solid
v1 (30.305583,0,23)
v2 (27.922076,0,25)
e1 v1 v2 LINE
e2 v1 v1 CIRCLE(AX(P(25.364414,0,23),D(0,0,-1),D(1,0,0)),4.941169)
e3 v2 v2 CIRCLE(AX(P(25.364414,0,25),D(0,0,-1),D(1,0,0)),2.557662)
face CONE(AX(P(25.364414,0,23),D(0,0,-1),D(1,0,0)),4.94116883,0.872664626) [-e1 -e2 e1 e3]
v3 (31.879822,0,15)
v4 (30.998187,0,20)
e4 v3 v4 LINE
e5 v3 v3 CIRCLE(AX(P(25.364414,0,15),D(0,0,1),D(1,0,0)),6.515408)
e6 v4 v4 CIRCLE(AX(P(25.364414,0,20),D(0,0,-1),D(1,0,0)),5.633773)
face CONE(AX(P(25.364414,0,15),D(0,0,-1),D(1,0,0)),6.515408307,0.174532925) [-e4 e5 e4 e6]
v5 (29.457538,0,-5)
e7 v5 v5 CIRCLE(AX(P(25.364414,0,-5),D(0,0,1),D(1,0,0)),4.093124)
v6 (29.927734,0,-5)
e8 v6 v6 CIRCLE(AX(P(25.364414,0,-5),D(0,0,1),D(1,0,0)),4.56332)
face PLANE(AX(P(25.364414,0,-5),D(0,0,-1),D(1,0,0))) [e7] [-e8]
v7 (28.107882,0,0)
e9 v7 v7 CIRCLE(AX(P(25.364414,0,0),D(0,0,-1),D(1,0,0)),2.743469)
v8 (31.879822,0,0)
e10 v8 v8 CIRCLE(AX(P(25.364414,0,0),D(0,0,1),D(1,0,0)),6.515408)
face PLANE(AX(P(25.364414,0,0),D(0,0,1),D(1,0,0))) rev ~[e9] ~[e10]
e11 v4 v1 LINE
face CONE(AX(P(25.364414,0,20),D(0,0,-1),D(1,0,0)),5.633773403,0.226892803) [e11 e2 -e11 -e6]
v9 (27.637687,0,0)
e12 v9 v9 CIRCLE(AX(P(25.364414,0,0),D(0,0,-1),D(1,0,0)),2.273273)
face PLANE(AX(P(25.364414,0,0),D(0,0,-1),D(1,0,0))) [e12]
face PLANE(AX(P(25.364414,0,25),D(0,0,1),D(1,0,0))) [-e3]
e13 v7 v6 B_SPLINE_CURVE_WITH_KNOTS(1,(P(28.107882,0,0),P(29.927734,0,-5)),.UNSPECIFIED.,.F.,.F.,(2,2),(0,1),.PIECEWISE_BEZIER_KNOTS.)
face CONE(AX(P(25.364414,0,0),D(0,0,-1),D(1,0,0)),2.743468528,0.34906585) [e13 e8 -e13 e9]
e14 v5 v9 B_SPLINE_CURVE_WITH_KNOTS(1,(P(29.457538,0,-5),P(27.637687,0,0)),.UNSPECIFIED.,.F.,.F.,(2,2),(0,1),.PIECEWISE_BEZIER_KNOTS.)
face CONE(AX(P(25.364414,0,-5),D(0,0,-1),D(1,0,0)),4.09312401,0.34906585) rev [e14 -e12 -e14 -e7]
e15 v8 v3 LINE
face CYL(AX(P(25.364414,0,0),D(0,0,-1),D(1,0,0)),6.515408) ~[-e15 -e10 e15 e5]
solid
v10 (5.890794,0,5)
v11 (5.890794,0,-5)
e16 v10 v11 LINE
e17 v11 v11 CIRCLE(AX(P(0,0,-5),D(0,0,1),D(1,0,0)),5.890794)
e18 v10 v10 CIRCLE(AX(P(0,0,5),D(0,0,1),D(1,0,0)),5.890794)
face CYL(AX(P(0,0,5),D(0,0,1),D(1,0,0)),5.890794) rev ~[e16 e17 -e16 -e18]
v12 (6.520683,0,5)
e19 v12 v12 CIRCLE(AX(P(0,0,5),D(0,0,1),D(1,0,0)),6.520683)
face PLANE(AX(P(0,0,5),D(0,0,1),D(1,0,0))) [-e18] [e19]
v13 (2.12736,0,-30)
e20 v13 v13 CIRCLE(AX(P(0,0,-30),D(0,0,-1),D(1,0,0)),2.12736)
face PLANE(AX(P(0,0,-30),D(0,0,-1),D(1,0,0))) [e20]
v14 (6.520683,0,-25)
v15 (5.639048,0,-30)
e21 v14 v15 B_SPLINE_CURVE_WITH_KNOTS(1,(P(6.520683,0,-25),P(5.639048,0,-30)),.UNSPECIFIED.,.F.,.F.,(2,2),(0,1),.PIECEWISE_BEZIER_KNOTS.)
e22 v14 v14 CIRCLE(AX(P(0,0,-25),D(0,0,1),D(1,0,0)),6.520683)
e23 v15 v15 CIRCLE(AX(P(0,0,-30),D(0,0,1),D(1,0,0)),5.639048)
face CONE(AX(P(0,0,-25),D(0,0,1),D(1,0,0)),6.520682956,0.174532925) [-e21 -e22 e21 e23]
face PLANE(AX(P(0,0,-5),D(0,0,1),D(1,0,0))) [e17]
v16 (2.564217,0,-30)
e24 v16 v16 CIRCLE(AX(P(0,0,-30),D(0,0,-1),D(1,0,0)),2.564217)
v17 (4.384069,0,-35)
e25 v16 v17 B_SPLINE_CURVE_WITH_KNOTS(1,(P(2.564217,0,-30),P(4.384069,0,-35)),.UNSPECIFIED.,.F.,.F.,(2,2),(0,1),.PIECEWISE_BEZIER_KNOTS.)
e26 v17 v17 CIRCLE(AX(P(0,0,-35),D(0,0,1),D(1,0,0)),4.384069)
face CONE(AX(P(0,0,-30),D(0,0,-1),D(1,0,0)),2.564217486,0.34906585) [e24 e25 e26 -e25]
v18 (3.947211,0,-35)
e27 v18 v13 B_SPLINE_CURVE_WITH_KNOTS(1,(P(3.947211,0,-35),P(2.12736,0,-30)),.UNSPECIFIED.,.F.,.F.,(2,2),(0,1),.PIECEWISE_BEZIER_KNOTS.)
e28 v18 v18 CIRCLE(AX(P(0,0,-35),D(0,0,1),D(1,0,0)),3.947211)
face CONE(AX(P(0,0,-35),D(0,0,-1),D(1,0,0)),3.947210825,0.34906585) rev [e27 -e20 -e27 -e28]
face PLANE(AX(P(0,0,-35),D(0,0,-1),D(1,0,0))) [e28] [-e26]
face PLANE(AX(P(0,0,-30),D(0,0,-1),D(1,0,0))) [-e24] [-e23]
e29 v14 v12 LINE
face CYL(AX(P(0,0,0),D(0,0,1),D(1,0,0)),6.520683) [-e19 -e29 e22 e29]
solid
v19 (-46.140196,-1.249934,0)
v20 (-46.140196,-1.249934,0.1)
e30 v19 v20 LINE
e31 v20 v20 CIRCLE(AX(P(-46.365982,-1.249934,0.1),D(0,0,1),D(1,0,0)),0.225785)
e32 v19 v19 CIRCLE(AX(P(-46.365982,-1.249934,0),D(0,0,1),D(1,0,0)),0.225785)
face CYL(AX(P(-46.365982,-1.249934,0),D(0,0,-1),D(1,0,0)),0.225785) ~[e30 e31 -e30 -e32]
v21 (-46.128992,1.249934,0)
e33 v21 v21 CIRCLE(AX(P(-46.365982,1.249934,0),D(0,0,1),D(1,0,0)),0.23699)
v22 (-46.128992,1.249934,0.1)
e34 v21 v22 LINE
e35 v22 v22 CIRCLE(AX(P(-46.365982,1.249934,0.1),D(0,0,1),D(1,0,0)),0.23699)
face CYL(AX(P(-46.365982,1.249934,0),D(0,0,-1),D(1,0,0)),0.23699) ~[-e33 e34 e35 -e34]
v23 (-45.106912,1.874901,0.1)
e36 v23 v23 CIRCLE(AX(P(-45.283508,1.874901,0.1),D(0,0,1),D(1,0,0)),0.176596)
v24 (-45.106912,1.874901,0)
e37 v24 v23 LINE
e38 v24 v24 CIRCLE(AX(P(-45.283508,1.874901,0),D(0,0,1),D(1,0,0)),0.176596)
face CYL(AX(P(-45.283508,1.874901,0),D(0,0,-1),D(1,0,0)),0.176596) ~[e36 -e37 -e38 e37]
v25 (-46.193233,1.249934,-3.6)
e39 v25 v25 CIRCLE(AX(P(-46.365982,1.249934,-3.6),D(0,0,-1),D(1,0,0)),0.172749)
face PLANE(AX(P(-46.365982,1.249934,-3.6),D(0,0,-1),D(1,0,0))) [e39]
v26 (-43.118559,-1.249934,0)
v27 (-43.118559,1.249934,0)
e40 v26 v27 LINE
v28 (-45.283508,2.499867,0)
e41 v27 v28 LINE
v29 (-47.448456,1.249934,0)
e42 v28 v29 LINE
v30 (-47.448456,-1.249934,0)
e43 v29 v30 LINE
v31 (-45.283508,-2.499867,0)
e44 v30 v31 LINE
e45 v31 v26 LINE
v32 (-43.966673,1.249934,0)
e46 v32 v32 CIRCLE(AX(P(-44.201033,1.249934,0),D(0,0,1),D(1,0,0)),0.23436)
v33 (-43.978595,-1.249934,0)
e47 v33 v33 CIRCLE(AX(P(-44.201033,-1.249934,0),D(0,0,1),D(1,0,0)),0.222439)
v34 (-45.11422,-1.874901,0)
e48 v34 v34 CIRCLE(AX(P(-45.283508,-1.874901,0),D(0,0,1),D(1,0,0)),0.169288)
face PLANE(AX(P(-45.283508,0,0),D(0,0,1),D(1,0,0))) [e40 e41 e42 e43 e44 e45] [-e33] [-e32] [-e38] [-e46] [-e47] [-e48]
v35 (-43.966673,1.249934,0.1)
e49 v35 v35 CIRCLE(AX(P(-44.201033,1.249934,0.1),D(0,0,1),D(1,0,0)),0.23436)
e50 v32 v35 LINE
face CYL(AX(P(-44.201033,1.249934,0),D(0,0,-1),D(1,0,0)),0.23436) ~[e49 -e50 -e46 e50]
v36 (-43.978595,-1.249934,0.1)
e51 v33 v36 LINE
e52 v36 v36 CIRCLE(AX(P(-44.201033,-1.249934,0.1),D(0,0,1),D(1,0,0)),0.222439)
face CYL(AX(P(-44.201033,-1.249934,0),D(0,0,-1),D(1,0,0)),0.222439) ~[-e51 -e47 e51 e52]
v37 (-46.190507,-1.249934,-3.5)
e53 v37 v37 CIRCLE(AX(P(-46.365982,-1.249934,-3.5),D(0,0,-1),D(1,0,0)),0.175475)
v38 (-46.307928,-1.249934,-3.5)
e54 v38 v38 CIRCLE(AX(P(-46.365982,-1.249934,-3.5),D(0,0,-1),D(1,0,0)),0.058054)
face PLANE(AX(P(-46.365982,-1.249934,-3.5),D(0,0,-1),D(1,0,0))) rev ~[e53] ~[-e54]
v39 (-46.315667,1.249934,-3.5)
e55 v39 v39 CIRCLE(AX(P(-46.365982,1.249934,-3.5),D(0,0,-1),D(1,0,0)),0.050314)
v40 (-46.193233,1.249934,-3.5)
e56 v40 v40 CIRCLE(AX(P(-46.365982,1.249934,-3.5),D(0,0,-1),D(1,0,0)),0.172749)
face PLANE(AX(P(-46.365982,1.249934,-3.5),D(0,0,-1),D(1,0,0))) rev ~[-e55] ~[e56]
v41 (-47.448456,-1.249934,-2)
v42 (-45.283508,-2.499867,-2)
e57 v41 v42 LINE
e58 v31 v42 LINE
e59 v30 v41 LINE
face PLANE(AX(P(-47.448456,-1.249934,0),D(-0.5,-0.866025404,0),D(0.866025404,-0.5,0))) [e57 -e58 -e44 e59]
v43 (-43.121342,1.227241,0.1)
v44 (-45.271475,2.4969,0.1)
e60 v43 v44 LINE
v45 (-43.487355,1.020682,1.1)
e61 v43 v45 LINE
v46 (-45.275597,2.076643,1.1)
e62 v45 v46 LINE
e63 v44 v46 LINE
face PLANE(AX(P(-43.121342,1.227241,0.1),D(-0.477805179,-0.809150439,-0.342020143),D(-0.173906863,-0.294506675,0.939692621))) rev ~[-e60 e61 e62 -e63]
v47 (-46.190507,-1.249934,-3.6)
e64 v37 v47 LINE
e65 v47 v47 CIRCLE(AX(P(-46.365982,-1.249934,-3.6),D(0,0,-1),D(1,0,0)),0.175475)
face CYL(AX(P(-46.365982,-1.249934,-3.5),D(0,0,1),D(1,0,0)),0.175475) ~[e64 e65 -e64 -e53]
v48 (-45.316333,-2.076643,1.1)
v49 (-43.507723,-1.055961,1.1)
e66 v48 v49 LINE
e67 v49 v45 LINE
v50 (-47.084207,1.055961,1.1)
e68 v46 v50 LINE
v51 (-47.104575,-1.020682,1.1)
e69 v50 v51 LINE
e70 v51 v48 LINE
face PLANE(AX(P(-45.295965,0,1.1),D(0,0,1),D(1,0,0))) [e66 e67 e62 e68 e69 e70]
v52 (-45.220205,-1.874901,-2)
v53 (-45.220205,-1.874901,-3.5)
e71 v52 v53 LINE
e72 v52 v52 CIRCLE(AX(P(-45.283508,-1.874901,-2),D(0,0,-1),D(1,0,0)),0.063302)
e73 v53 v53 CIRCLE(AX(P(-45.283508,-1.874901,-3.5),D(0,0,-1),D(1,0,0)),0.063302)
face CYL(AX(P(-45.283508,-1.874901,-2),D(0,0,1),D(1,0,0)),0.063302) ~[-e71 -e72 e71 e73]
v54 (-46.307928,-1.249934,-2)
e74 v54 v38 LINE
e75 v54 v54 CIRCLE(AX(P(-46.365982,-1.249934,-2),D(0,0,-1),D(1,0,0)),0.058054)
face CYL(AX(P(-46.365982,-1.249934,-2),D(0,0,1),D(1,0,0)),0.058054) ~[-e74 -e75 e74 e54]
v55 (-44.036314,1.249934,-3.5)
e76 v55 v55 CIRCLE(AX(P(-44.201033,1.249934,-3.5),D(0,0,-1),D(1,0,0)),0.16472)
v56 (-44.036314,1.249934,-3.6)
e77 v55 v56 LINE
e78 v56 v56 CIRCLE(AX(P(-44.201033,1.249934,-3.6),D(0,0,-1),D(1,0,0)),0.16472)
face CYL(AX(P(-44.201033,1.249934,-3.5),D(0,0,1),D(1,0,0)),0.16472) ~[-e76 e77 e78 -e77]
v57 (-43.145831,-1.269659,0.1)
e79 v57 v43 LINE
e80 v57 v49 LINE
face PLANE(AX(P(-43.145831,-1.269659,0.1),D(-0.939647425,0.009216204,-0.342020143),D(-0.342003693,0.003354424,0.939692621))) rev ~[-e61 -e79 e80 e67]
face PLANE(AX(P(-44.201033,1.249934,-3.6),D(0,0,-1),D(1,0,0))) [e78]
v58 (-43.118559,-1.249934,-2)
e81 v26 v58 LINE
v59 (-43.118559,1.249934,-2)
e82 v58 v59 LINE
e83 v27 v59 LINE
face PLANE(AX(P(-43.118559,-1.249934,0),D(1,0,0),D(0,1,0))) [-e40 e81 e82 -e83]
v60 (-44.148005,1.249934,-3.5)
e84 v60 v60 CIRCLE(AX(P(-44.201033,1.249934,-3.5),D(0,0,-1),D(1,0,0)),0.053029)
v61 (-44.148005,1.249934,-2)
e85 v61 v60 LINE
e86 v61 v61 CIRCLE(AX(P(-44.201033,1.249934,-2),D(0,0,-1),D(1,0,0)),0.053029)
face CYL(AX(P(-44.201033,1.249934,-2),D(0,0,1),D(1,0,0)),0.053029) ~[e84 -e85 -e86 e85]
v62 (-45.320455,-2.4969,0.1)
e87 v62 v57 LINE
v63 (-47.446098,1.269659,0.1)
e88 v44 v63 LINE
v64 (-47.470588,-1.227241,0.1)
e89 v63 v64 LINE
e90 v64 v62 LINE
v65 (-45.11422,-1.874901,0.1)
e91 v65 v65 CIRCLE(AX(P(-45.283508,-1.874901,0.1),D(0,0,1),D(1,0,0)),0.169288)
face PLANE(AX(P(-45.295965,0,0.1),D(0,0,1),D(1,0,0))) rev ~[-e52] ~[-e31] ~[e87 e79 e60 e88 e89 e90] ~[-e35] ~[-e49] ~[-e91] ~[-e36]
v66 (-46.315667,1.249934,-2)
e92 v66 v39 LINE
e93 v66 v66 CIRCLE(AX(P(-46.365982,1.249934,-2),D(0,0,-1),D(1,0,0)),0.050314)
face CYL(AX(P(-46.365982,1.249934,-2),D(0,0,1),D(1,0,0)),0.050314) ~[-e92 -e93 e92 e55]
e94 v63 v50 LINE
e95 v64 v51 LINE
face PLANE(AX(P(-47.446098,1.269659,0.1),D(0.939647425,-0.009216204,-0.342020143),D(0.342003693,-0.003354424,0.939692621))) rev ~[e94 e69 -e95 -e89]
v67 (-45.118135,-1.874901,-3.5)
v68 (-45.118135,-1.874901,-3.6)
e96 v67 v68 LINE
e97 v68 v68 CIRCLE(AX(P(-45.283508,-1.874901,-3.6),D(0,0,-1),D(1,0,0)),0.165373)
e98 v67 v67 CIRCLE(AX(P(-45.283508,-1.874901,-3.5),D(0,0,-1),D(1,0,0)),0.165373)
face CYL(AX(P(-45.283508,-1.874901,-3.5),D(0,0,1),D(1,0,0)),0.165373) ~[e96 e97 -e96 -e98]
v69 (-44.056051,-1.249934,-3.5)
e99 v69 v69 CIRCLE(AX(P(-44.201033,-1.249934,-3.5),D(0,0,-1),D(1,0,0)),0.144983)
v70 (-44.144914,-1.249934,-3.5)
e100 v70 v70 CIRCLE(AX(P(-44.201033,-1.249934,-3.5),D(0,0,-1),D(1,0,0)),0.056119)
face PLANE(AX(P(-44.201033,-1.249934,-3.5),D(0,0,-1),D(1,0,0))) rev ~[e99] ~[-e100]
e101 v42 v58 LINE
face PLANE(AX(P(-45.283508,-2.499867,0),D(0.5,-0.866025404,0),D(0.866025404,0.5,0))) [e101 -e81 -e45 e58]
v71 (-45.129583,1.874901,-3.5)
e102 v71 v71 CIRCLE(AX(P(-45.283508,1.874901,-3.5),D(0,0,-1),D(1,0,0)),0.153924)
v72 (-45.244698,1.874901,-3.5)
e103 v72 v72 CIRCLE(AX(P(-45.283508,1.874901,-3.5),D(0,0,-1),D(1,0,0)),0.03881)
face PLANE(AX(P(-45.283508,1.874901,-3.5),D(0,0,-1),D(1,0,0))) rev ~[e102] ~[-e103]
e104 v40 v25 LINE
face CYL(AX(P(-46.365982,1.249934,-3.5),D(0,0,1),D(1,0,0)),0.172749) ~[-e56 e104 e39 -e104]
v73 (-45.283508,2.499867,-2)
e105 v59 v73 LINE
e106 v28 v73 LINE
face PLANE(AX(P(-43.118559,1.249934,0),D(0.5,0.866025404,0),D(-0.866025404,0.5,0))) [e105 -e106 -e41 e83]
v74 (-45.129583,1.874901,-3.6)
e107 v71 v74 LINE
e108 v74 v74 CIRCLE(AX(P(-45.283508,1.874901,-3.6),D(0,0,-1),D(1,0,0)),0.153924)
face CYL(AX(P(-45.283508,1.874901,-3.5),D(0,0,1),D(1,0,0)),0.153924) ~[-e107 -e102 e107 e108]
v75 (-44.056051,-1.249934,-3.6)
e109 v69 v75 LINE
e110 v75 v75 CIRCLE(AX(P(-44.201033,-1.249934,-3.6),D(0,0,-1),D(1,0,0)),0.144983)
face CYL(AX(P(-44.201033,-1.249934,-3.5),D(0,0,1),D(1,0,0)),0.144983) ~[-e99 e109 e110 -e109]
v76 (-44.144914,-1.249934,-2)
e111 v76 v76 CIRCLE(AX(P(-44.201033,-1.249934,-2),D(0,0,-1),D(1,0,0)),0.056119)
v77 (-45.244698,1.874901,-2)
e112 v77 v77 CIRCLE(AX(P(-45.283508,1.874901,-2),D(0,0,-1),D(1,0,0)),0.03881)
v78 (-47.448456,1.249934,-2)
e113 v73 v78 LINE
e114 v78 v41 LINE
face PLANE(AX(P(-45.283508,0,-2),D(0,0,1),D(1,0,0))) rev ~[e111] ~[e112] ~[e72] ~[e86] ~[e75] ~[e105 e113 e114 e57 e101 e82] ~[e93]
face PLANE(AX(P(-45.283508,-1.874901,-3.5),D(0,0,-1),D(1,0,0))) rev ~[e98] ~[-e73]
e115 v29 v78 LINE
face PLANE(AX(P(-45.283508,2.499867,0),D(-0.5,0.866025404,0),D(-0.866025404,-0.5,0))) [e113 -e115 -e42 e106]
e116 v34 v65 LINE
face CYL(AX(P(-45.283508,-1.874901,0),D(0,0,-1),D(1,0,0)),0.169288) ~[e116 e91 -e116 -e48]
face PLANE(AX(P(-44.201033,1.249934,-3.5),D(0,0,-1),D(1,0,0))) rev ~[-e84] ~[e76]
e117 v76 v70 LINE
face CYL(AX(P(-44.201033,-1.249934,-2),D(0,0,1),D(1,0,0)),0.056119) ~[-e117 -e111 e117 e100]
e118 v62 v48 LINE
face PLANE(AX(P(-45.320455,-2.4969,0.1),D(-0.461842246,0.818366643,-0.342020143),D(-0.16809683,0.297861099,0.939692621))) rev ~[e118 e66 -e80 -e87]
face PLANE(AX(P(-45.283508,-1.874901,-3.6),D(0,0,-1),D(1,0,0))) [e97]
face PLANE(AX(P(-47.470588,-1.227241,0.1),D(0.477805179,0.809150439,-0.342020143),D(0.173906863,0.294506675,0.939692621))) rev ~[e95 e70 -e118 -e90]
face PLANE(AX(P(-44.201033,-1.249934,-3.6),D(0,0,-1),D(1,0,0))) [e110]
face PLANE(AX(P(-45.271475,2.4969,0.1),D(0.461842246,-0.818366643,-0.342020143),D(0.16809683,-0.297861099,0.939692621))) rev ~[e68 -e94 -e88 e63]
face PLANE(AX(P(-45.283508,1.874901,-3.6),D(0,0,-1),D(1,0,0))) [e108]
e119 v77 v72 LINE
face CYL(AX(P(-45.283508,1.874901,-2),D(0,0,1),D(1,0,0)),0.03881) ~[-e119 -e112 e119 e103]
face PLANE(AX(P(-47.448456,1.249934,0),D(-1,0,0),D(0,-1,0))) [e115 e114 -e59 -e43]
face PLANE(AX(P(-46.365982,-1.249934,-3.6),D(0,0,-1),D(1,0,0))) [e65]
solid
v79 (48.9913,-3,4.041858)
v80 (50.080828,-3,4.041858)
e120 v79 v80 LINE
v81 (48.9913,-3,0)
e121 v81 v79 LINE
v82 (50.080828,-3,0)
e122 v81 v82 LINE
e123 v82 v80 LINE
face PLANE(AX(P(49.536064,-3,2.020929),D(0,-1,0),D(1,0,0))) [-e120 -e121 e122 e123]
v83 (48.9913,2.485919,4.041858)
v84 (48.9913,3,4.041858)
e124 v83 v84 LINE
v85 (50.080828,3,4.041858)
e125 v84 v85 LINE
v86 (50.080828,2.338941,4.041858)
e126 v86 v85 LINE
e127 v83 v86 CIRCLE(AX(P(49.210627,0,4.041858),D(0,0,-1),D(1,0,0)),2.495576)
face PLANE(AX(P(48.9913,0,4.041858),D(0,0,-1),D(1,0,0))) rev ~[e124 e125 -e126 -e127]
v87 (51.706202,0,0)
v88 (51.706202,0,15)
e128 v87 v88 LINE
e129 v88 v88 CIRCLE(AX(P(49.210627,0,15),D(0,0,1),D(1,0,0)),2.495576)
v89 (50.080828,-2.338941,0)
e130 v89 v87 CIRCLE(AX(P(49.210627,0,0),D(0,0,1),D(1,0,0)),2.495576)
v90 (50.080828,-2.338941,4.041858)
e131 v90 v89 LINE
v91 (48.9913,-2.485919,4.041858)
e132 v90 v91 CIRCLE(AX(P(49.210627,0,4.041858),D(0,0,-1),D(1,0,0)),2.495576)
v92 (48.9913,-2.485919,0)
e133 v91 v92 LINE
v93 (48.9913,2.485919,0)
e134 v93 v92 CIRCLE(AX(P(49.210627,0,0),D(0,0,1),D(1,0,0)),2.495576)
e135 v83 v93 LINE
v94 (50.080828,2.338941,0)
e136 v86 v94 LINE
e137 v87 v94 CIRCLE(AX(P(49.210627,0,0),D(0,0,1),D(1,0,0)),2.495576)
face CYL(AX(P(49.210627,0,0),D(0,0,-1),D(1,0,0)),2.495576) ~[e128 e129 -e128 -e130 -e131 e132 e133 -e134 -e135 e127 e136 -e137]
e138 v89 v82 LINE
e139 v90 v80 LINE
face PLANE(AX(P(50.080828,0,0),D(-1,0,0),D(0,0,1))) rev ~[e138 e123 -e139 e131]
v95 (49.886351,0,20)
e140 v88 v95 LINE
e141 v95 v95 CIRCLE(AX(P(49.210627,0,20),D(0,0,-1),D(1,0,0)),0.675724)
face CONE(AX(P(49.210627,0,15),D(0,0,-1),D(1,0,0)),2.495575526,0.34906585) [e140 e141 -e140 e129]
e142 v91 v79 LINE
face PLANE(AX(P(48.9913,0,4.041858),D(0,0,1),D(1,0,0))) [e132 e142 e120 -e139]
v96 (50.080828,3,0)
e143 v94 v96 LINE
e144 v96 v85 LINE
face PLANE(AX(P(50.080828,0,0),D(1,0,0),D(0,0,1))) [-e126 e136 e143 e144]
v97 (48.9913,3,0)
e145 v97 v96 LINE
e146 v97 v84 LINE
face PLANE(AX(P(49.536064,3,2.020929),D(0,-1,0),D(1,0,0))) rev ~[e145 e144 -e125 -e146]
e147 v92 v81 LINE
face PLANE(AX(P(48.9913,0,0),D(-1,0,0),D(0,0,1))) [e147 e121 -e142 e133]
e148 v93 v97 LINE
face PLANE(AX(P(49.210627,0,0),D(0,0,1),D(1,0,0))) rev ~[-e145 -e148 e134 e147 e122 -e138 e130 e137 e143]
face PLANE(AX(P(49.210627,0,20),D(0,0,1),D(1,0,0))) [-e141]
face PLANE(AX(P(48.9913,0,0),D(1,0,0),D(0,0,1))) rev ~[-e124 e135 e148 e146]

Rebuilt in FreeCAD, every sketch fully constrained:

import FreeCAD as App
import Part
import Sketcher

V = App.Vector
Q = App.Units.Quantity


def add_polygon(sketch, points):
    """Adds a closed chain of lines whose ends are joined by coincident constraints."""
    first, n = sketch.GeometryCount, len(points)
    for a, b in zip(points, points[1:] + points[:1]):
        sketch.addGeometry(Part.LineSegment(App.Vector(*a, 0), App.Vector(*b, 0)), False)
    for i in range(n):
        sketch.addConstraint(Sketcher.Constraint("Coincident", first + i, 2, first + (i + 1) % n, 1))

doc = App.newDocument("Part")
params = doc.addObject("Spreadsheet::Sheet", "Params")
for row, (alias, value) in enumerate([
    ("pad1_length", "5 mm"),
    ("pad1_length2", "25 mm"),
    ("pad2_length", "5 mm"),
    ("pad2_taper", "-10 deg"),
    ("pad3_length", "5 mm"),
    ("pad3_taper", "20 deg"),
    ("pocket1_length", "5 mm"),
    ("pocket1_taper", "-20 deg"),
    ("pocket2_length", "10 mm"),
    ("pad4_length", "15 mm"),
    ("pad5_length", "5 mm"),
    ("pad5_taper", "20 deg"),
    ("pocket3_length", "5 mm"),
    ("pocket3_taper", "-20 deg"),
    ("pad6_length", "5 mm"),
    ("pad6_taper", "-10 deg"),
    ("pad7_length", "3 mm"),
    ("pad7_taper", "-13 deg"),
    ("pad8_length", "2 mm"),
    ("pad8_taper", "-50 deg"),
    ("pad9_length", "15 mm"),
    ("pad10_length", "5 mm"),
    ("pad10_taper", "-20 deg"),
    ("pad11_length", "3 mm"),
    ("pad11_length2", "3 mm"),
    ("pad12_length", "2 mm"),
    ("pad13_length", "0.1 mm"),
    ("pad14_length", "1 mm"),
    ("pad14_taper", "-20 deg"),
    ("pad15_length", "1.5 mm"),
    ("pad16_length", "0.1 mm"),
    ("pad17_length", "0.1 mm"),
    ("pad18_length", "0.1 mm"),
    ("pad19_length", "0.1 mm"),
    ("pad20_length", "0.1 mm"),
    ("pad21_length", "0.1 mm"),
], start=1):
    params.set(f"A{row}", alias)
    params.set(f"B{row}", "=" + value)
    params.setAlias(f"B{row}", alias)

body = doc.addObject("PartDesign::Body", "Body")

# Sketch on XY plane
sketch1 = body.newObject("Sketcher::SketchObject", "Sketch")
sketch1.AttachmentSupport = (doc.getObject("XY_Plane"), [""])
sketch1.MapMode = "FlatFace"
sketch1.addGeometry(Part.Circle(V(0, 0, 0), V(0, 0, 1), 7), False)
sketch1.addConstraint([
    Sketcher.Constraint("Coincident", 0, 3, -1, 1),
    Sketcher.Constraint("Diameter", 0, Q("13.041366 mm")),
])
pad1 = body.newObject("PartDesign::Pad", "Pad")
pad1.Profile = sketch1
pad1.Type = "TwoLengths"
pad1.setExpression("Length", "Params.pad1_length")
pad1.setExpression("Length2", "Params.pad1_length2")

# Sketch on XY plane
sketch2 = body.newObject("Sketcher::SketchObject", "Sketch001")
sketch2.AttachmentSupport = (doc.getObject("XY_Plane"), [""])
sketch2.MapMode = "FlatFace"
sketch2.AttachmentOffset = App.Placement(V(0, 0, -25), App.Rotation())
sketch2.addGeometry(Part.Circle(V(0, 0, 0), V(0, 0, 1), 7), False)
sketch2.addConstraint([
    Sketcher.Constraint("Coincident", 0, 3, -1, 1),
    Sketcher.Constraint("Diameter", 0, Q("13.041366 mm")),
])
pad2 = body.newObject("PartDesign::Pad", "Pad001")
pad2.Profile = sketch2
pad2.setExpression("Length", "Params.pad2_length")
pad2.Reversed = True
pad2.setExpression("TaperAngle", "Params.pad2_taper")

# Sketch on XY plane
sketch3 = body.newObject("Sketcher::SketchObject", "Sketch002")
sketch3.AttachmentSupport = (doc.getObject("XY_Plane"), [""])
sketch3.MapMode = "FlatFace"
sketch3.AttachmentOffset = App.Placement(V(0, 0, -30), App.Rotation())
sketch3.addGeometry(Part.Circle(V(0, 0, 0), V(0, 0, 1), 2.6), False)
sketch3.addConstraint([
    Sketcher.Constraint("Coincident", 0, 3, -1, 1),
    Sketcher.Constraint("Diameter", 0, Q("5.128435 mm")),
])
pad3 = body.newObject("PartDesign::Pad", "Pad002")
pad3.Profile = sketch3
pad3.setExpression("Length", "Params.pad3_length")
pad3.Reversed = True
pad3.setExpression("TaperAngle", "Params.pad3_taper")

# Sketch on XY plane
sketch4 = body.newObject("Sketcher::SketchObject", "Sketch003")
sketch4.AttachmentSupport = (doc.getObject("XY_Plane"), [""])
sketch4.MapMode = "FlatFace"
sketch4.AttachmentOffset = App.Placement(V(0, 0, -35), App.Rotation())
sketch4.addGeometry(Part.Circle(V(0, 0, 0), V(0, 0, 1), 3.9), False)
sketch4.addConstraint([
    Sketcher.Constraint("Coincident", 0, 3, -1, 1),
    Sketcher.Constraint("Diameter", 0, Q("7.894422 mm")),
])
pocket1 = body.newObject("PartDesign::Pocket", "Pocket")
pocket1.Profile = sketch4
pocket1.setExpression("Length", "Params.pocket1_length")
pocket1.Reversed = True
pocket1.setExpression("TaperAngle", "Params.pocket1_taper")

# Sketch on XY plane
sketch5 = body.newObject("Sketcher::SketchObject", "Sketch004")
sketch5.AttachmentSupport = (doc.getObject("XY_Plane"), [""])
sketch5.MapMode = "FlatFace"
sketch5.AttachmentOffset = App.Placement(V(0, 0, 5), App.Rotation())
sketch5.addGeometry(Part.Circle(V(0, 0, 0), V(0, 0, 1), 6), False)
sketch5.addConstraint([
    Sketcher.Constraint("Coincident", 0, 3, -1, 1),
    Sketcher.Constraint("Diameter", 0, Q("11.781587 mm")),
])
pocket2 = body.newObject("PartDesign::Pocket", "Pocket001")
pocket2.Profile = sketch5
pocket2.setExpression("Length", "Params.pocket2_length")
body2 = doc.addObject("PartDesign::Body", "Body001")

# Sketch on XY plane
sketch6 = body2.newObject("Sketcher::SketchObject", "Sketch005")
sketch6.AttachmentSupport = (doc.getObject("XY_Plane001"), [""])
sketch6.MapMode = "FlatFace"
sketch6.addGeometry(Part.Circle(V(25, 0, 0), V(0, 0, 1), 7), False)
sketch6.addConstraint([
    Sketcher.Constraint("PointOnObject", 0, 3, -1),
    Sketcher.Constraint("Diameter", 0, Q("13.030817 mm")),
    Sketcher.Constraint("DistanceX", -1, 1, 0, 3, Q("25.364414 mm")),
])
pad4 = body2.newObject("PartDesign::Pad", "Pad003")
pad4.Profile = sketch6
pad4.setExpression("Length", "Params.pad4_length")

# Sketch on XY plane
sketch7 = body2.newObject("Sketcher::SketchObject", "Sketch006")
sketch7.AttachmentSupport = (doc.getObject("XY_Plane001"), [""])
sketch7.MapMode = "FlatFace"
sketch7.addGeometry(Part.Circle(V(25.4, 0, 0), V(0, 0, 1), 2.7), False)
sketch7.addConstraint([
    Sketcher.Constraint("PointOnObject", 0, 3, -1),
    Sketcher.Constraint("Diameter", 0, Q("5.486937 mm")),
    Sketcher.Constraint("DistanceX", -1, 1, 0, 3, Q("25.364414 mm")),
])
pad5 = body2.newObject("PartDesign::Pad", "Pad004")
pad5.Profile = sketch7
pad5.setExpression("Length", "Params.pad5_length")
pad5.Reversed = True
pad5.setExpression("TaperAngle", "Params.pad5_taper")

# Sketch on XY plane
sketch8 = body2.newObject("Sketcher::SketchObject", "Sketch007")
sketch8.AttachmentSupport = (doc.getObject("XY_Plane001"), [""])
sketch8.MapMode = "FlatFace"
sketch8.AttachmentOffset = App.Placement(V(0, 0, -5), App.Rotation())
sketch8.addGeometry(Part.Circle(V(25.4, 0, 0), V(0, 0, 1), 4.1), False)
sketch8.addConstraint([
    Sketcher.Constraint("PointOnObject", 0, 3, -1),
    Sketcher.Constraint("Diameter", 0, Q("8.186248 mm")),
    Sketcher.Constraint("DistanceX", -1, 1, 0, 3, Q("25.364414 mm")),
])
pocket3 = body2.newObject("PartDesign::Pocket", "Pocket002")
pocket3.Profile = sketch8
pocket3.setExpression("Length", "Params.pocket3_length")
pocket3.Reversed = True
pocket3.setExpression("TaperAngle", "Params.pocket3_taper")

# Sketch on XY plane
sketch9 = body2.newObject("Sketcher::SketchObject", "Sketch008")
sketch9.AttachmentSupport = (doc.getObject("XY_Plane001"), [""])
sketch9.MapMode = "FlatFace"
sketch9.AttachmentOffset = App.Placement(V(0, 0, 15), App.Rotation())
sketch9.addGeometry(Part.Circle(V(25, 0, 0), V(0, 0, 1), 7), False)
sketch9.addConstraint([
    Sketcher.Constraint("PointOnObject", 0, 3, -1),
    Sketcher.Constraint("Diameter", 0, Q("13.030817 mm")),
    Sketcher.Constraint("DistanceX", -1, 1, 0, 3, Q("25.364414 mm")),
])
pad6 = body2.newObject("PartDesign::Pad", "Pad005")
pad6.Profile = sketch9
pad6.setExpression("Length", "Params.pad6_length")
pad6.setExpression("TaperAngle", "Params.pad6_taper")

# Sketch on XY plane
sketch10 = body2.newObject("Sketcher::SketchObject", "Sketch009")
sketch10.AttachmentSupport = (doc.getObject("XY_Plane001"), [""])
sketch10.MapMode = "FlatFace"
sketch10.AttachmentOffset = App.Placement(V(0, 0, 20), App.Rotation())
sketch10.addGeometry(Part.Circle(V(25, 0, 0), V(0, 0, 1), 6), False)
sketch10.addConstraint([
    Sketcher.Constraint("PointOnObject", 0, 3, -1),
    Sketcher.Constraint("Diameter", 0, Q("11.267547 mm")),
    Sketcher.Constraint("DistanceX", -1, 1, 0, 3, Q("25.364414 mm")),
])
pad7 = body2.newObject("PartDesign::Pad", "Pad006")
pad7.Profile = sketch10
pad7.setExpression("Length", "Params.pad7_length")
pad7.setExpression("TaperAngle", "Params.pad7_taper")

# Sketch on XY plane
sketch11 = body2.newObject("Sketcher::SketchObject", "Sketch010")
sketch11.AttachmentSupport = (doc.getObject("XY_Plane001"), [""])
sketch11.MapMode = "FlatFace"
sketch11.AttachmentOffset = App.Placement(V(0, 0, 23), App.Rotation())
sketch11.addGeometry(Part.Circle(V(25.4, 0, 0), V(0, 0, 1), 4.9), False)
sketch11.addConstraint([
    Sketcher.Constraint("PointOnObject", 0, 3, -1),
    Sketcher.Constraint("Diameter", 0, Q("9.882338 mm")),
    Sketcher.Constraint("DistanceX", -1, 1, 0, 3, Q("25.364414 mm")),
])
pad8 = body2.newObject("PartDesign::Pad", "Pad007")
pad8.Profile = sketch11
pad8.setExpression("Length", "Params.pad8_length")
pad8.setExpression("TaperAngle", "Params.pad8_taper")
body3 = doc.addObject("PartDesign::Body", "Body002")

# Sketch on XY plane
sketch12 = body3.newObject("Sketcher::SketchObject", "Sketch011")
sketch12.AttachmentSupport = (doc.getObject("XY_Plane002"), [""])
sketch12.MapMode = "FlatFace"
sketch12.addGeometry(Part.Circle(V(49.2, 0, 0), V(0, 0, 1), 2.5), False)
sketch12.addConstraint([
    Sketcher.Constraint("PointOnObject", 0, 3, -1),
    Sketcher.Constraint("Diameter", 0, Q("4.991151 mm")),
    Sketcher.Constraint("DistanceX", -1, 1, 0, 3, Q("49.210627 mm")),
])
pad9 = body3.newObject("PartDesign::Pad", "Pad008")
pad9.Profile = sketch12
pad9.setExpression("Length", "Params.pad9_length")

# Sketch on XY plane
sketch13 = body3.newObject("Sketcher::SketchObject", "Sketch012")
sketch13.AttachmentSupport = (doc.getObject("XY_Plane002"), [""])
sketch13.MapMode = "FlatFace"
sketch13.AttachmentOffset = App.Placement(V(0, 0, 15), App.Rotation())
sketch13.addGeometry(Part.Circle(V(49.2, 0, 0), V(0, 0, 1), 2.5), False)
sketch13.addConstraint([
    Sketcher.Constraint("PointOnObject", 0, 3, -1),
    Sketcher.Constraint("Diameter", 0, Q("4.991151 mm")),
    Sketcher.Constraint("DistanceX", -1, 1, 0, 3, Q("49.210627 mm")),
])
pad10 = body3.newObject("PartDesign::Pad", "Pad009")
pad10.Profile = sketch13
pad10.setExpression("Length", "Params.pad10_length")
pad10.setExpression("TaperAngle", "Params.pad10_taper")

# Sketch on XZ plane
sketch14 = body3.newObject("Sketcher::SketchObject", "Sketch013")
sketch14.AttachmentSupport = (doc.getObject("XZ_Plane002"), [""])
sketch14.MapMode = "FlatFace"
add_polygon(sketch14, [(49, 4), (49, 0), (50.1, 0), (50.1, 4)])  # lines 0-3
sketch14.addConstraint([
    Sketcher.Constraint("Vertical", 0),
    Sketcher.Constraint("Horizontal", 1),
    Sketcher.Constraint("Vertical", 2),
    Sketcher.Constraint("Horizontal", 3),
    Sketcher.Constraint("PointOnObject", 0, 2, -1),
    Sketcher.Constraint("DistanceX", 1, 1, 1, 2, Q("1.089528 mm")),
    Sketcher.Constraint("DistanceX", -1, 1, 0, 2, Q("48.9913 mm")),
    Sketcher.Constraint("DistanceY", 0, 2, 0, 1, Q("4.041858 mm")),
])
pad11 = body3.newObject("PartDesign::Pad", "Pad010")
pad11.Profile = sketch14
pad11.Type = "TwoLengths"
pad11.setExpression("Length", "Params.pad11_length")
pad11.setExpression("Length2", "Params.pad11_length2")
body4 = doc.addObject("PartDesign::Body", "Body003")

# Sketch on XY plane
sketch15 = body4.newObject("Sketcher::SketchObject", "Sketch014")
sketch15.AttachmentSupport = (doc.getObject("XY_Plane003"), [""])
sketch15.MapMode = "FlatFace"
add_polygon(sketch15, [(-43.1, -1.2), (-43.1, 1.2), (-45.3, 2.5), (-47.4, 1.2), (-47.4, -1.2), (-45.3, -2.5)])  # lines 0-5
sketch15.addConstraint([
    Sketcher.Constraint("Vertical", 0),
    Sketcher.Constraint("Vertical", 3),
    Sketcher.Constraint("Symmetric", 1, 2, 4, 2, -1),
    Sketcher.Constraint("Parallel", 1, 4),
    Sketcher.Constraint("Parallel", 2, 5),
    Sketcher.Constraint("Horizontal", 0, 2, 2, 2),
    Sketcher.Constraint("Horizontal", 3, 2, 5, 2),
    Sketcher.Constraint("Angle", 1, Q("150 deg")),
    Sketcher.Constraint("DistanceY", 3, 2, 1, 2, Q("3.749801 mm")),
    Sketcher.Constraint("DistanceY", 0, 1, 0, 2, Q("2.499867 mm")),
    Sketcher.Constraint("DistanceX", 0, 2, -1, 1, Q("43.118559 mm")),
])
pad12 = body4.newObject("PartDesign::Pad", "Pad011")
pad12.Profile = sketch15
pad12.setExpression("Length", "Params.pad12_length")
pad12.Reversed = True

# Sketch on XY plane
sketch16 = body4.newObject("Sketcher::SketchObject", "Sketch015")
sketch16.AttachmentSupport = (doc.getObject("XY_Plane003"), [""])
sketch16.MapMode = "FlatFace"
sketch16.addGeometry([
    Part.Circle(V(-45.28, -1.87, 0), V(0, 0, 1), 0.17),  # 0
    Part.Circle(V(-44.2, -1.25, 0), V(0, 0, 1), 0.22),  # 1
    Part.Circle(V(-44.2, 1.25, 0), V(0, 0, 1), 0.23),  # 2
    Part.Circle(V(-46.37, 1.25, 0), V(0, 0, 1), 0.24),  # 3
    Part.Circle(V(-46.37, -1.25, 0), V(0, 0, 1), 0.23),  # 4
    Part.Circle(V(-45.28, 1.87, 0), V(0, 0, 1), 0.18),  # 5
], False)
sketch16.addConstraint([
    Sketcher.Constraint("Symmetric", 1, 3, 2, 3, -1),
    Sketcher.Constraint("Symmetric", 3, 3, 4, 3, -1),
    Sketcher.Constraint("Symmetric", 0, 3, 5, 3, -1),
    Sketcher.Constraint("Horizontal", 2, 3, 3, 3),
    Sketcher.Constraint("Diameter", 2, Q("0.468721 mm")),
    Sketcher.Constraint("Diameter", 3, Q("0.473979 mm")),
    Sketcher.Constraint("Diameter", 4, Q("0.451571 mm")),
    Sketcher.Constraint("Diameter", 5, Q("0.353192 mm")),
    Sketcher.Constraint("Diameter", 0, Q("0.338576 mm")),
    Sketcher.Constraint("Diameter", 1, Q("0.444877 mm")),
    Sketcher.Constraint("DistanceY", 0, 3, -1, 1, Q("1.874901 mm")),
    Sketcher.Constraint("DistanceX", 3, 3, -1, 1, Q("46.365982 mm")),
    Sketcher.Constraint("DistanceX", 3, 3, 2, 3, Q("2.164949 mm")),
    Sketcher.Constraint("DistanceX", 0, 3, -1, 1, Q("45.283508 mm")),
    Sketcher.Constraint("DistanceY", 1, 3, -1, 1, Q("1.249934 mm")),
])
pad13 = body4.newObject("PartDesign::Pad", "Pad012")
pad13.Profile = sketch16
pad13.setExpression("Length", "Params.pad13_length")

# Sketch on XY plane
sketch17 = body4.newObject("Sketcher::SketchObject", "Sketch016")
sketch17.AttachmentSupport = (doc.getObject("XY_Plane003"), [""])
sketch17.MapMode = "FlatFace"
sketch17.AttachmentOffset = App.Placement(V(0, 0, 0.1), App.Rotation())
add_polygon(sketch17, [(-43.1, 1.2), (-45.3, 2.5), (-47.4, 1.3), (-47.5, -1.2), (-45.3, -2.5), (-43.1, -1.3)])  # lines 0-5
sketch17.addConstraint([
    Sketcher.Constraint("Parallel", 0, 3),
    Sketcher.Constraint("Parallel", 1, 4),
    Sketcher.Constraint("Parallel", 2, 5),
    Sketcher.Constraint("Equal", 0, 1),
    Sketcher.Constraint("Equal", 1, 2),
    Sketcher.Constraint("Equal", 2, 3),
    Sketcher.Constraint("DistanceY", -1, 1, 0, 2, Q("2.4969 mm")),
    Sketcher.Constraint("DistanceX", 1, 2, -1, 1, Q("47.446098 mm")),
    Sketcher.Constraint("DistanceY", 3, 2, -1, 1, Q("2.4969 mm")),
    Sketcher.Constraint("DistanceY", 2, 2, 1, 2, Q("2.4969 mm")),
    Sketcher.Constraint("Distance", 0, Q("2.49702 mm")),
    Sketcher.Constraint("DistanceY", -1, 1, 1, 2, Q("1.269659 mm")),
])
pad14 = body4.newObject("PartDesign::Pad", "Pad013")
pad14.Profile = sketch17
pad14.setExpression("Length", "Params.pad14_length")
pad14.setExpression("TaperAngle", "Params.pad14_taper")

# Sketch on XY plane
sketch18 = body4.newObject("Sketcher::SketchObject", "Sketch017")
sketch18.AttachmentSupport = (doc.getObject("XY_Plane003"), [""])
sketch18.MapMode = "FlatFace"
sketch18.AttachmentOffset = App.Placement(V(0, 0, -2), App.Rotation())
sketch18.addGeometry([
    Part.Circle(V(-45.284, -1.875, 0), V(0, 0, 1), 0.063),  # 0
    Part.Circle(V(-44.201, -1.25, 0), V(0, 0, 1), 0.056),  # 1
    Part.Circle(V(-44.201, 1.25, 0), V(0, 0, 1), 0.053),  # 2
    Part.Circle(V(-45.284, 1.875, 0), V(0, 0, 1), 0.039),  # 3
    Part.Circle(V(-46.366, 1.25, 0), V(0, 0, 1), 0.05),  # 4
    Part.Circle(V(-46.366, -1.25, 0), V(0, 0, 1), 0.058),  # 5
], False)
sketch18.addConstraint([
    Sketcher.Constraint("Symmetric", 1, 3, 2, 3, -1),
    Sketcher.Constraint("Symmetric", 0, 3, 3, 3, -1),
    Sketcher.Constraint("Symmetric", 4, 3, 5, 3, -1),
    Sketcher.Constraint("Horizontal", 2, 3, 4, 3),
    Sketcher.Constraint("Diameter", 1, Q("0.112238 mm")),
    Sketcher.Constraint("Diameter", 3, Q("0.077619 mm")),
    Sketcher.Constraint("Diameter", 4, Q("0.100629 mm")),
    Sketcher.Constraint("Diameter", 0, Q("0.126605 mm")),
    Sketcher.Constraint("Diameter", 2, Q("0.106057 mm")),
    Sketcher.Constraint("Diameter", 5, Q("0.116108 mm")),
    Sketcher.Constraint("DistanceY", 0, 3, -1, 1, Q("1.874901 mm")),
    Sketcher.Constraint("DistanceX", 4, 3, -1, 1, Q("46.365982 mm")),
    Sketcher.Constraint("DistanceX", 4, 3, 2, 3, Q("2.164949 mm")),
    Sketcher.Constraint("DistanceX", 0, 3, -1, 1, Q("45.283508 mm")),
    Sketcher.Constraint("DistanceY", 1, 3, -1, 1, Q("1.249934 mm")),
])
pad15 = body4.newObject("PartDesign::Pad", "Pad014")
pad15.Profile = sketch18
pad15.setExpression("Length", "Params.pad15_length")
pad15.Reversed = True

# Sketch on XY plane
sketch19 = body4.newObject("Sketcher::SketchObject", "Sketch018")
sketch19.AttachmentSupport = (doc.getObject("XY_Plane003"), [""])
sketch19.MapMode = "FlatFace"
sketch19.AttachmentOffset = App.Placement(V(0, 0, -3.5), App.Rotation())
sketch19.addGeometry(Part.Circle(V(-46.37, 1.25, 0), V(0, 0, 1), 0.17), False)
sketch19.addConstraint([
    Sketcher.Constraint("Diameter", 0, Q("0.345497 mm")),
    Sketcher.Constraint("DistanceX", 0, 3, -1, 1, Q("46.365982 mm")),
    Sketcher.Constraint("DistanceY", -1, 1, 0, 3, Q("1.249934 mm")),
])
pad16 = body4.newObject("PartDesign::Pad", "Pad015")
pad16.Profile = sketch19
pad16.setExpression("Length", "Params.pad16_length")
pad16.Reversed = True

# Sketch on XY plane
sketch20 = body4.newObject("Sketcher::SketchObject", "Sketch019")
sketch20.AttachmentSupport = (doc.getObject("XY_Plane003"), [""])
sketch20.MapMode = "FlatFace"
sketch20.AttachmentOffset = App.Placement(V(0, 0, -3.5), App.Rotation())
sketch20.addGeometry(Part.Circle(V(-45.28, 1.87, 0), V(0, 0, 1), 0.15), False)
sketch20.addConstraint([
    Sketcher.Constraint("Diameter", 0, Q("0.307849 mm")),
    Sketcher.Constraint("DistanceY", -1, 1, 0, 3, Q("1.874901 mm")),
    Sketcher.Constraint("DistanceX", 0, 3, -1, 1, Q("45.283508 mm")),
])
pad17 = body4.newObject("PartDesign::Pad", "Pad016")
pad17.Profile = sketch20
pad17.setExpression("Length", "Params.pad17_length")
pad17.Reversed = True

# Sketch on XY plane
sketch21 = body4.newObject("Sketcher::SketchObject", "Sketch020")
sketch21.AttachmentSupport = (doc.getObject("XY_Plane003"), [""])
sketch21.MapMode = "FlatFace"
sketch21.AttachmentOffset = App.Placement(V(0, 0, -3.5), App.Rotation())
sketch21.addGeometry(Part.Circle(V(-44.2, 1.25, 0), V(0, 0, 1), 0.16), False)
sketch21.addConstraint([
    Sketcher.Constraint("Diameter", 0, Q("0.329439 mm")),
    Sketcher.Constraint("DistanceX", 0, 3, -1, 1, Q("44.201033 mm")),
    Sketcher.Constraint("DistanceY", -1, 1, 0, 3, Q("1.249934 mm")),
])
pad18 = body4.newObject("PartDesign::Pad", "Pad017")
pad18.Profile = sketch21
pad18.setExpression("Length", "Params.pad18_length")
pad18.Reversed = True

# Sketch on XY plane
sketch22 = body4.newObject("Sketcher::SketchObject", "Sketch021")
sketch22.AttachmentSupport = (doc.getObject("XY_Plane003"), [""])
sketch22.MapMode = "FlatFace"
sketch22.AttachmentOffset = App.Placement(V(0, 0, -3.5), App.Rotation())
sketch22.addGeometry(Part.Circle(V(-44.2, -1.25, 0), V(0, 0, 1), 0.14), False)
sketch22.addConstraint([
    Sketcher.Constraint("Diameter", 0, Q("0.289965 mm")),
    Sketcher.Constraint("DistanceX", 0, 3, -1, 1, Q("44.201033 mm")),
    Sketcher.Constraint("DistanceY", 0, 3, -1, 1, Q("1.249934 mm")),
])
pad19 = body4.newObject("PartDesign::Pad", "Pad018")
pad19.Profile = sketch22
pad19.setExpression("Length", "Params.pad19_length")
pad19.Reversed = True

# Sketch on XY plane
sketch23 = body4.newObject("Sketcher::SketchObject", "Sketch022")
sketch23.AttachmentSupport = (doc.getObject("XY_Plane003"), [""])
sketch23.MapMode = "FlatFace"
sketch23.AttachmentOffset = App.Placement(V(0, 0, -3.5), App.Rotation())
sketch23.addGeometry(Part.Circle(V(-45.28, -1.87, 0), V(0, 0, 1), 0.17), False)
sketch23.addConstraint([
    Sketcher.Constraint("Diameter", 0, Q("0.330745 mm")),
    Sketcher.Constraint("DistanceY", 0, 3, -1, 1, Q("1.874901 mm")),
    Sketcher.Constraint("DistanceX", 0, 3, -1, 1, Q("45.283508 mm")),
])
pad20 = body4.newObject("PartDesign::Pad", "Pad019")
pad20.Profile = sketch23
pad20.setExpression("Length", "Params.pad20_length")
pad20.Reversed = True

# Sketch on XY plane
sketch24 = body4.newObject("Sketcher::SketchObject", "Sketch023")
sketch24.AttachmentSupport = (doc.getObject("XY_Plane003"), [""])
sketch24.MapMode = "FlatFace"
sketch24.AttachmentOffset = App.Placement(V(0, 0, -3.5), App.Rotation())
sketch24.addGeometry(Part.Circle(V(-46.37, -1.25, 0), V(0, 0, 1), 0.18), False)
sketch24.addConstraint([
    Sketcher.Constraint("Diameter", 0, Q("0.350949 mm")),
    Sketcher.Constraint("DistanceX", 0, 3, -1, 1, Q("46.365982 mm")),
    Sketcher.Constraint("DistanceY", 0, 3, -1, 1, Q("1.249934 mm")),
])
pad21 = body4.newObject("PartDesign::Pad", "Pad020")
pad21.Profile = sketch24
pad21.setExpression("Length", "Params.pad21_length")
pad21.Reversed = True

doc.recompute()
